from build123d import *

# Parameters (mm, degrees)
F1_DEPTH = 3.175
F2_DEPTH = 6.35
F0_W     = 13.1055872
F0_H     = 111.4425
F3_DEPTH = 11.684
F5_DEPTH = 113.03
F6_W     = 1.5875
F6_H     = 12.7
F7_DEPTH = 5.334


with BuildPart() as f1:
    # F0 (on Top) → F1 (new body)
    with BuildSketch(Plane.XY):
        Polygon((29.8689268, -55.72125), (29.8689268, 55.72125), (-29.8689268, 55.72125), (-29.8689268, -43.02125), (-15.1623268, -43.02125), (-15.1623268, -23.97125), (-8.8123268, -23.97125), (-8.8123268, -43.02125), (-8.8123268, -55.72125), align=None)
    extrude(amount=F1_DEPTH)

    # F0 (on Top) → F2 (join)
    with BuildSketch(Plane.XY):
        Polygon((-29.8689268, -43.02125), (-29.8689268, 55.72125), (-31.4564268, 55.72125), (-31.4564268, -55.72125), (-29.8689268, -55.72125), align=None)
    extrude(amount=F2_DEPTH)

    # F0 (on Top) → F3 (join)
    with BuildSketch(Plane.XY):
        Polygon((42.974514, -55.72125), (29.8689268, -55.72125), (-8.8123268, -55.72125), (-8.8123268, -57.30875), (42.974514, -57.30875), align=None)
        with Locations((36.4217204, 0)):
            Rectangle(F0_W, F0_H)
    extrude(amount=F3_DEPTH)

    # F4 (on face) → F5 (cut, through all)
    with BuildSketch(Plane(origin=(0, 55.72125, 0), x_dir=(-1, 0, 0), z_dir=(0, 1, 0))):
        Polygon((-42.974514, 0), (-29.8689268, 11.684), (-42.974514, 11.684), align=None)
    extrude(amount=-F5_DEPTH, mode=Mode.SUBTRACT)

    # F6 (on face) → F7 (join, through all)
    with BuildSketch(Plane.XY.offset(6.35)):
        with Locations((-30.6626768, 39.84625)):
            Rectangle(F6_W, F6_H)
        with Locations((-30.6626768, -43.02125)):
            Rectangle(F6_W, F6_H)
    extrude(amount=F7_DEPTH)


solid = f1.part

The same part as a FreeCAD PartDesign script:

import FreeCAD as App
import Part
import Sketcher
from FreeCAD import Vector
Q = App.Units.Quantity

doc = App.newDocument("Part")
body = doc.addObject("PartDesign::Body", "Body")

# Sketch on XY plane
sketch1 = body.newObject("Sketcher::SketchObject", "Sketch")
sketch1.AttachmentSupport = (doc.getObject("XY_Plane"), [""])
sketch1.MapMode = "FlatFace"
sketch1.addGeometry([
    Part.LineSegment(Vector(29.868927, -55.72125, 0), Vector(29.868927, 55.72125, 0)),  # 0
    Part.LineSegment(Vector(29.868927, 55.72125, 0), Vector(-29.868927, 55.72125, 0)),  # 1
    Part.LineSegment(Vector(-29.868927, 55.72125, 0), Vector(-29.868927, -43.02125, 0)),  # 2
    Part.LineSegment(Vector(-29.868927, -43.02125, 0), Vector(-15.162327, -43.02125, 0)),  # 3
    Part.LineSegment(Vector(-15.162327, -43.02125, 0), Vector(-15.162327, -23.97125, 0)),  # 4
    Part.LineSegment(Vector(-15.162327, -23.97125, 0), Vector(-8.812327, -23.97125, 0)),  # 5
    Part.LineSegment(Vector(-8.812327, -23.97125, 0), Vector(-8.812327, -55.72125, 0)),  # 6
    Part.LineSegment(Vector(-8.812327, -55.72125, 0), Vector(29.868927, -55.72125, 0)),  # 7
], False)
sketch1.addConstraint([
    Sketcher.Constraint("Coincident", 0, 2, 1, 1),
    Sketcher.Constraint("Coincident", 1, 2, 2, 1),
    Sketcher.Constraint("Coincident", 2, 2, 3, 1),
    Sketcher.Constraint("Coincident", 3, 2, 4, 1),
    Sketcher.Constraint("Coincident", 4, 2, 5, 1),
    Sketcher.Constraint("Coincident", 5, 2, 6, 1),
    Sketcher.Constraint("Coincident", 6, 2, 7, 1),
    Sketcher.Constraint("Coincident", 7, 2, 0, 1),
    Sketcher.Constraint("Vertical", 0),
    Sketcher.Constraint("Horizontal", 1),
    Sketcher.Constraint("Vertical", 2),
    Sketcher.Constraint("Horizontal", 3),
    Sketcher.Constraint("Vertical", 4),
    Sketcher.Constraint("Horizontal", 5),
    Sketcher.Constraint("Vertical", 6),
    Sketcher.Constraint("Horizontal", 7),
    Sketcher.Constraint("Symmetric", 1, 2, 7, 2, -1, 1),
    Sketcher.Constraint("DistanceX", 5, 1, 5, 2, Q("0.25 in")),
    Sketcher.Constraint("DistanceY", 4, 1, 4, 2, Q("0.75 in")),
    Sketcher.Constraint("DistanceY", 6, 2, 6, 1, Q("1.25 in")),
    Sketcher.Constraint("DistanceX", 3, 1, 3, 2, Q("0.579 in")),
    Sketcher.Constraint("DistanceY", 0, 1, 0, 2, Q("4.3875 in")),
    Sketcher.Constraint("DistanceX", 1, 2, 1, 1, Q("59.737854 mm")),
])
pad1 = body.newObject("PartDesign::Pad", "Pad")
pad1.Profile = sketch1
pad1.Length = Q("0.125 in")

# Sketch on XY plane
sketch2 = body.newObject("Sketcher::SketchObject", "Sketch001")
sketch2.AttachmentSupport = (doc.getObject("XY_Plane"), [""])
sketch2.MapMode = "FlatFace"
sketch2.addGeometry([
    Part.LineSegment(Vector(-29.868927, 55.72125, 0), Vector(-31.456427, 55.72125, 0)),
    Part.LineSegment(Vector(-31.456427, 55.72125, 0), Vector(-31.456427, -55.72125, 0)),
    Part.LineSegment(Vector(-31.456427, -55.72125, 0), Vector(-29.868927, -55.72125, 0)),
    Part.LineSegment(Vector(-29.868927, -55.72125, 0), Vector(-29.868927, 55.72125, 0)),
], False)
sketch2.addConstraint([
    Sketcher.Constraint("Coincident", 0, 2, 1, 1),
    Sketcher.Constraint("Coincident", 1, 2, 2, 1),
    Sketcher.Constraint("Coincident", 2, 2, 3, 1),
    Sketcher.Constraint("Coincident", 3, 2, 0, 1),
    Sketcher.Constraint("Horizontal", 0),
    Sketcher.Constraint("Vertical", 1),
    Sketcher.Constraint("Horizontal", 2),
    Sketcher.Constraint("Vertical", 3),
    Sketcher.Constraint("DistanceX", 0, 2, 0, 1, Q("0.0625 in")),
    Sketcher.Constraint("DistanceY", 1, 2, 1, 1, Q("4.3875 in")),
    Sketcher.Constraint("DistanceY", -1, 1, 0, 2, Q("55.72125 mm")),
    Sketcher.Constraint("DistanceX", 0, 2, -1, 1, Q("31.456427 mm")),
])
pad2 = body.newObject("PartDesign::Pad", "Pad001")
pad2.Profile = sketch2
pad2.Length = Q("0.25 in")

# Sketch on XY plane
sketch3 = body.newObject("Sketcher::SketchObject", "Sketch002")
sketch3.AttachmentSupport = (doc.getObject("XY_Plane"), [""])
sketch3.MapMode = "FlatFace"
sketch3.addGeometry([
    Part.LineSegment(Vector(29.868927, -55.72125, 0), Vector(-8.812327, -55.72125, 0)),  # 0
    Part.LineSegment(Vector(-8.812327, -55.72125, 0), Vector(-8.812327, -57.30875, 0)),  # 1
    Part.LineSegment(Vector(-8.812327, -57.30875, 0), Vector(42.974514, -57.30875, 0)),  # 2
    Part.LineSegment(Vector(42.974514, -57.30875, 0), Vector(42.974514, 55.72125, 0)),  # 3
    Part.LineSegment(Vector(42.974514, 55.72125, 0), Vector(29.868927, 55.72125, 0)),  # 4
    Part.LineSegment(Vector(29.868927, 55.72125, 0), Vector(29.868927, -55.72125, 0)),  # 5
], False)
sketch3.addConstraint([
    Sketcher.Constraint("Coincident", 0, 2, 1, 1),
    Sketcher.Constraint("Coincident", 1, 2, 2, 1),
    Sketcher.Constraint("Coincident", 2, 2, 3, 1),
    Sketcher.Constraint("Coincident", 3, 2, 4, 1),
    Sketcher.Constraint("Coincident", 4, 2, 5, 1),
    Sketcher.Constraint("Coincident", 5, 2, 0, 1),
    Sketcher.Constraint("Horizontal", 0),
    Sketcher.Constraint("Vertical", 1),
    Sketcher.Constraint("Horizontal", 2),
    Sketcher.Constraint("Vertical", 3),
    Sketcher.Constraint("Horizontal", 4),
    Sketcher.Constraint("Vertical", 5),
    Sketcher.Constraint("DistanceY", 3, 1, 3, 2, Q("4.45 in")),
    Sketcher.Constraint("DistanceY", 1, 2, 1, 1, Q("0.0625 in")),
    Sketcher.Constraint("DistanceX", 2, 1, 2, 2, Q("51.786841 mm")),
    Sketcher.Constraint("DistanceX", 0, 2, 0, 1, Q("38.681254 mm")),
    Sketcher.Constraint("DistanceY", 0, 2, -1, 1, Q("55.72125 mm")),
    Sketcher.Constraint("DistanceX", 0, 2, -1, 1, Q("8.812327 mm")),
])
pad3 = body.newObject("PartDesign::Pad", "Pad002")
pad3.Profile = sketch3
pad3.Length = Q("0.46 in")

# Sketch on XZ plane
sketch4 = body.newObject("Sketcher::SketchObject", "Sketch003")
sketch4.AttachmentSupport = (doc.getObject("XZ_Plane"), [""])
sketch4.MapMode = "FlatFace"
sketch4.AttachmentOffset = App.Placement(Vector(0, 0, -55.72125), App.Rotation())
sketch4.addGeometry([
    Part.LineSegment(Vector(42.974514, 0, 0), Vector(29.868927, 11.684, 0)),
    Part.LineSegment(Vector(29.868927, 11.684, 0), Vector(42.974514, 11.684, 0)),
    Part.LineSegment(Vector(42.974514, 11.684, 0), Vector(42.974514, 0, 0)),
], False)
sketch4.addConstraint([
    Sketcher.Constraint("Coincident", 0, 2, 1, 1),
    Sketcher.Constraint("Coincident", 1, 2, 2, 1),
    Sketcher.Constraint("Coincident", 2, 2, 0, 1),
    Sketcher.Constraint("Horizontal", 1),
    Sketcher.Constraint("Vertical", 2),
    Sketcher.Constraint("PointOnObject", 2, 2, -1),
    Sketcher.Constraint("DistanceY", 2, 2, 2, 1, Q("0.46 in")),
    Sketcher.Constraint("DistanceX", 1, 1, 1, 2, Q("13.105587 mm")),
    Sketcher.Constraint("DistanceX", -1, 1, 0, 2, Q("29.868927 mm")),
])
pocket1 = body.newObject("PartDesign::Pocket", "Pocket")
pocket1.Profile = sketch4
pocket1.Type = "ThroughAll"
pocket1.Reversed = True

# Sketch on XY plane
sketch5 = body.newObject("Sketcher::SketchObject", "Sketch004")
sketch5.AttachmentSupport = (doc.getObject("XY_Plane"), [""])
sketch5.MapMode = "FlatFace"
sketch5.AttachmentOffset = App.Placement(Vector(0, 0, 0.25 * 25.4), App.Rotation())
sketch5.addGeometry([
    Part.LineSegment(Vector(-31.456427, 46.19625, 0), Vector(-31.456427, 33.49625, 0)),  # 0
    Part.LineSegment(Vector(-31.456427, 33.49625, 0), Vector(-29.868927, 33.49625, 0)),  # 1
    Part.LineSegment(Vector(-29.868927, 33.49625, 0), Vector(-29.868927, 46.19625, 0)),  # 2
    Part.LineSegment(Vector(-29.868927, 46.19625, 0), Vector(-31.456427, 46.19625, 0)),  # 3
    Part.LineSegment(Vector(-31.456427, -36.67125, 0), Vector(-31.456427, -49.37125, 0)),  # 4
    Part.LineSegment(Vector(-31.456427, -49.37125, 0), Vector(-29.868927, -49.37125, 0)),  # 5
    Part.LineSegment(Vector(-29.868927, -49.37125, 0), Vector(-29.868927, -36.67125, 0)),  # 6
    Part.LineSegment(Vector(-29.868927, -36.67125, 0), Vector(-31.456427, -36.67125, 0)),  # 7
], False)
sketch5.addConstraint([
    Sketcher.Constraint("Coincident", 0, 2, 1, 1),
    Sketcher.Constraint("Coincident", 1, 2, 2, 1),
    Sketcher.Constraint("Coincident", 2, 2, 3, 1),
    Sketcher.Constraint("Coincident", 3, 2, 0, 1),
    Sketcher.Constraint("Coincident", 4, 2, 5, 1),
    Sketcher.Constraint("Coincident", 5, 2, 6, 1),
    Sketcher.Constraint("Coincident", 6, 2, 7, 1),
    Sketcher.Constraint("Coincident", 7, 2, 4, 1),
    Sketcher.Constraint("Vertical", 0),
    Sketcher.Constraint("Horizontal", 1),
    Sketcher.Constraint("Vertical", 2),
    Sketcher.Constraint("Horizontal", 3),
    Sketcher.Constraint("Vertical", 4),
    Sketcher.Constraint("Horizontal", 5),
    Sketcher.Constraint("Vertical", 6),
    Sketcher.Constraint("Horizontal", 7),
    Sketcher.Constraint("Vertical", 3, 2, 4, 2),
    Sketcher.Constraint("Vertical", 2, 2, 5, 2),
    Sketcher.Constraint("Equal", 2, 4),
    Sketcher.Constraint("DistanceY", 0, 2, 0, 1, Q("0.5 in")),
    Sketcher.Constraint("DistanceX", 1, 1, 1, 2, Q("0.0625 in")),
    Sketcher.Constraint("DistanceY", 4, 2, 0, 2, Q("3.2625 in")),
    Sketcher.Constraint("DistanceY", -1, 1, 0, 2, Q("33.49625 mm")),
    Sketcher.Constraint("DistanceX", 0, 2, -1, 1, Q("31.456427 mm")),
])
pad4 = body.newObject("PartDesign::Pad", "Pad003")
pad4.Profile = sketch5
pad4.Length = Q("0.21 in")

doc.recompute()
